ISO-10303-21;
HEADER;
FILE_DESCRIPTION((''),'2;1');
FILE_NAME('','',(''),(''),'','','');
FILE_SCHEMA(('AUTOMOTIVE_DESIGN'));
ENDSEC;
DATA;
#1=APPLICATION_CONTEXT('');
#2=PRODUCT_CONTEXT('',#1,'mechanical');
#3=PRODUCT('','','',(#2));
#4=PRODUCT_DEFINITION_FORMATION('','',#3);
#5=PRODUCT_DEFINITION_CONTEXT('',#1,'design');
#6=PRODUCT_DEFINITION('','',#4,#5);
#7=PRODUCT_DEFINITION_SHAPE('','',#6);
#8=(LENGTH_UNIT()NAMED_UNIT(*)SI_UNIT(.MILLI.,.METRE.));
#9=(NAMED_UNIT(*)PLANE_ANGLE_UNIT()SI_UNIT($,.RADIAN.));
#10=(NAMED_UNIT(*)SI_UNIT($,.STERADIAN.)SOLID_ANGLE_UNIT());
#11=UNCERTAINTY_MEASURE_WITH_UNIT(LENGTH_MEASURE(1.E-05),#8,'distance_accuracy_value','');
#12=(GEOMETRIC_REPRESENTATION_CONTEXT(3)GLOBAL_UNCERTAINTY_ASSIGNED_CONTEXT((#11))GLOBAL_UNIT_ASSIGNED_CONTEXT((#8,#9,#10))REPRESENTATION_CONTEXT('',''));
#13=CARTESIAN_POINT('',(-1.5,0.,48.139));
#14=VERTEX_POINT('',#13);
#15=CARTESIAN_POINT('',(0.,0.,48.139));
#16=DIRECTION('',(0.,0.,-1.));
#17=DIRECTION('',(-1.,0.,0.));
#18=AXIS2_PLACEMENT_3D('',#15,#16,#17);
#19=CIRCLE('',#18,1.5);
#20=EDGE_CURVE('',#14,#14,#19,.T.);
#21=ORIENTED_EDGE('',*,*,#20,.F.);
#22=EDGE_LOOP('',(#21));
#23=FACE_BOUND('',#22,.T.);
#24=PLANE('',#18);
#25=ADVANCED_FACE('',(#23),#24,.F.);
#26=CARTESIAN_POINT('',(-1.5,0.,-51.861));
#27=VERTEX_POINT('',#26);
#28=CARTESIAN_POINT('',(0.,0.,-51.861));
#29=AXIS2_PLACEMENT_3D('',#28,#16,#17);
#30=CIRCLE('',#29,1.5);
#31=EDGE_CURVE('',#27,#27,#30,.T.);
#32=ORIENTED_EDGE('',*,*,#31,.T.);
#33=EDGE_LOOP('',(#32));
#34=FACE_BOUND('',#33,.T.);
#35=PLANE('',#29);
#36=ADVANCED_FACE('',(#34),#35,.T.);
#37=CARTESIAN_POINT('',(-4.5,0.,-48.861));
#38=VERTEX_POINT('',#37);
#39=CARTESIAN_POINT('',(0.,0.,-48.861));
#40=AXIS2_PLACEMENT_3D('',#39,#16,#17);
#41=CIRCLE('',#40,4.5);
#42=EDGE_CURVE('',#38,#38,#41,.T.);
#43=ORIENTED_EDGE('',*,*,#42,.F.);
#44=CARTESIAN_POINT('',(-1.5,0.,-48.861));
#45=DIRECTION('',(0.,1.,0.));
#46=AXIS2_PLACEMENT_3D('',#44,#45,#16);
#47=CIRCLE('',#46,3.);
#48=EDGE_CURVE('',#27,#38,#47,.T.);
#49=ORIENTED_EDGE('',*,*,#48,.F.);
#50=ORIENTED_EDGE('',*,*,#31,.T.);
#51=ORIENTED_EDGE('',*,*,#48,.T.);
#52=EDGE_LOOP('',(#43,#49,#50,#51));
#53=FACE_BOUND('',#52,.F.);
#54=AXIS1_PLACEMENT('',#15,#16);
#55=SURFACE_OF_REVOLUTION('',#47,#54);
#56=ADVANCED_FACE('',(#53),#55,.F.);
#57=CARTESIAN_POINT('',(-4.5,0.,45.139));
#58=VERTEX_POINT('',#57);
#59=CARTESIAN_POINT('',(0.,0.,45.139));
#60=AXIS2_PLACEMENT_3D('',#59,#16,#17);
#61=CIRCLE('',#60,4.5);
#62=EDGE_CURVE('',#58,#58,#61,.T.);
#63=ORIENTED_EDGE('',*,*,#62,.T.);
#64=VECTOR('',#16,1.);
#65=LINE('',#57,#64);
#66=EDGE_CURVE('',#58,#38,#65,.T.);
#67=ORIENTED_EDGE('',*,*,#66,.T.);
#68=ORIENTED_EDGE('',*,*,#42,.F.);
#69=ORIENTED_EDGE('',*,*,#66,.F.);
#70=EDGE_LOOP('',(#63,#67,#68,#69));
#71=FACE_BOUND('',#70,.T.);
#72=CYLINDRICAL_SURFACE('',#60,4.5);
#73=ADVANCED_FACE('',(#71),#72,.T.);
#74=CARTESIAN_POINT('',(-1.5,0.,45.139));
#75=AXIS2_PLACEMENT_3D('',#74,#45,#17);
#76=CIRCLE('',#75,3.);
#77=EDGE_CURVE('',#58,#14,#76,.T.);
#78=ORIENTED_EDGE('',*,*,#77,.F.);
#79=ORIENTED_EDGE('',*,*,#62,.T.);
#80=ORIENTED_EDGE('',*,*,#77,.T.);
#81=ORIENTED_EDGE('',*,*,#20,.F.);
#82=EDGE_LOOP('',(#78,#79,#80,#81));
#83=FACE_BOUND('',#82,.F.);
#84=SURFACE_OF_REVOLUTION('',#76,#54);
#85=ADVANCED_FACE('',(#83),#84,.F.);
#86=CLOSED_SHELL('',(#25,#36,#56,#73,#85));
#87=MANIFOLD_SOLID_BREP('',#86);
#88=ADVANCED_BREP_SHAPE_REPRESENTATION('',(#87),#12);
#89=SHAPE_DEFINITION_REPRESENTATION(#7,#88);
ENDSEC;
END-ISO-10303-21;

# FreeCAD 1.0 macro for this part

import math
import FreeCAD as App
import Part
import Sketcher
Q = App.Units.Quantity

doc = App.newDocument("Part")
params = doc.addObject("Spreadsheet::Sheet", "Params")
for row, (alias, value) in enumerate([
    ("sketch1_radius", "3 mm"),
    ("sketch1_height", "100 mm"),
    ("revolution_angle", "360 deg"),
], start=1):
    params.set(f"A{row}", alias)
    params.set(f"B{row}", "=" + value)
    params.setAlias(f"B{row}", alias)

body = doc.addObject("PartDesign::Body", "Body")

# Sketch on XZ plane
sketch1 = doc.addObject("Sketcher::SketchObject", "Sketch")
body.addObject(sketch1)
sketch1.AttachmentSupport = (doc.XZ_Plane, [""])
sketch1.MapMode = "FlatFace"
sketch1.addGeometry([
    Part.LineSegment(App.Vector(-1.5, 48.1, 0), App.Vector(0, 48.1, 0)),  # 0
    Part.LineSegment(App.Vector(0, 48.1, 0), App.Vector(0, -51.9, 0)),  # 1
    Part.LineSegment(App.Vector(0, -51.9, 0), App.Vector(-1.5, -51.9, 0)),  # 2
    Part.ArcOfCircle(Part.Circle(App.Vector(-1.5, -48.9, 0), App.Vector(0, 0, 1), 3), math.radians(180), math.radians(270)),  # 3
    Part.LineSegment(App.Vector(-4.5, -48.9, 0), App.Vector(-4.5, 45.1, 0)),  # 4
    Part.ArcOfCircle(Part.Circle(App.Vector(-1.5, 45.1, 0), App.Vector(0, 0, 1), 3), math.radians(90), math.radians(180)),  # 5
], False)
sketch1.addConstraint([
    Sketcher.Constraint("Coincident", 0, 2, 1, 1),
    Sketcher.Constraint("Coincident", 1, 2, 2, 1),
    Sketcher.Constraint("Tangent", 2, 2, 3, 2),
    Sketcher.Constraint("Tangent", 3, 1, 4, 1),
    Sketcher.Constraint("Tangent", 4, 2, 5, 2),
    Sketcher.Constraint("Tangent", 5, 1, 0, 1),
    Sketcher.Constraint("Horizontal", 0),
    Sketcher.Constraint("Vertical", 1),
    Sketcher.Constraint("Horizontal", 2),
    Sketcher.Constraint("Vertical", 4),
    Sketcher.Constraint("Equal", 3, 5),
    Sketcher.Constraint("PointOnObject", 0, 2, -2),
    Sketcher.Constraint("Radius", 3, Q("3 mm")),
    Sketcher.Constraint("DistanceY", 1, 2, 1, 1, Q("100 mm")),
    Sketcher.Constraint("DistanceX", 3, 1, -1, 1, Q("4.5 mm")),
    Sketcher.Constraint("DistanceY", 3, 3, -1, 1, Q("48.861 mm")),
])
sketch1.setExpression("Constraints[12]", "Params.sketch1_radius")
sketch1.setExpression("Constraints[13]", "Params.sketch1_height")
revolution = doc.addObject("PartDesign::Revolution", "Revolution")
body.addObject(revolution)
revolution.Profile = sketch1
revolution.ReferenceAxis = (sketch1, ["V_Axis"])
revolution.setExpression("Angle", "Params.revolution_angle")

doc.recompute()
